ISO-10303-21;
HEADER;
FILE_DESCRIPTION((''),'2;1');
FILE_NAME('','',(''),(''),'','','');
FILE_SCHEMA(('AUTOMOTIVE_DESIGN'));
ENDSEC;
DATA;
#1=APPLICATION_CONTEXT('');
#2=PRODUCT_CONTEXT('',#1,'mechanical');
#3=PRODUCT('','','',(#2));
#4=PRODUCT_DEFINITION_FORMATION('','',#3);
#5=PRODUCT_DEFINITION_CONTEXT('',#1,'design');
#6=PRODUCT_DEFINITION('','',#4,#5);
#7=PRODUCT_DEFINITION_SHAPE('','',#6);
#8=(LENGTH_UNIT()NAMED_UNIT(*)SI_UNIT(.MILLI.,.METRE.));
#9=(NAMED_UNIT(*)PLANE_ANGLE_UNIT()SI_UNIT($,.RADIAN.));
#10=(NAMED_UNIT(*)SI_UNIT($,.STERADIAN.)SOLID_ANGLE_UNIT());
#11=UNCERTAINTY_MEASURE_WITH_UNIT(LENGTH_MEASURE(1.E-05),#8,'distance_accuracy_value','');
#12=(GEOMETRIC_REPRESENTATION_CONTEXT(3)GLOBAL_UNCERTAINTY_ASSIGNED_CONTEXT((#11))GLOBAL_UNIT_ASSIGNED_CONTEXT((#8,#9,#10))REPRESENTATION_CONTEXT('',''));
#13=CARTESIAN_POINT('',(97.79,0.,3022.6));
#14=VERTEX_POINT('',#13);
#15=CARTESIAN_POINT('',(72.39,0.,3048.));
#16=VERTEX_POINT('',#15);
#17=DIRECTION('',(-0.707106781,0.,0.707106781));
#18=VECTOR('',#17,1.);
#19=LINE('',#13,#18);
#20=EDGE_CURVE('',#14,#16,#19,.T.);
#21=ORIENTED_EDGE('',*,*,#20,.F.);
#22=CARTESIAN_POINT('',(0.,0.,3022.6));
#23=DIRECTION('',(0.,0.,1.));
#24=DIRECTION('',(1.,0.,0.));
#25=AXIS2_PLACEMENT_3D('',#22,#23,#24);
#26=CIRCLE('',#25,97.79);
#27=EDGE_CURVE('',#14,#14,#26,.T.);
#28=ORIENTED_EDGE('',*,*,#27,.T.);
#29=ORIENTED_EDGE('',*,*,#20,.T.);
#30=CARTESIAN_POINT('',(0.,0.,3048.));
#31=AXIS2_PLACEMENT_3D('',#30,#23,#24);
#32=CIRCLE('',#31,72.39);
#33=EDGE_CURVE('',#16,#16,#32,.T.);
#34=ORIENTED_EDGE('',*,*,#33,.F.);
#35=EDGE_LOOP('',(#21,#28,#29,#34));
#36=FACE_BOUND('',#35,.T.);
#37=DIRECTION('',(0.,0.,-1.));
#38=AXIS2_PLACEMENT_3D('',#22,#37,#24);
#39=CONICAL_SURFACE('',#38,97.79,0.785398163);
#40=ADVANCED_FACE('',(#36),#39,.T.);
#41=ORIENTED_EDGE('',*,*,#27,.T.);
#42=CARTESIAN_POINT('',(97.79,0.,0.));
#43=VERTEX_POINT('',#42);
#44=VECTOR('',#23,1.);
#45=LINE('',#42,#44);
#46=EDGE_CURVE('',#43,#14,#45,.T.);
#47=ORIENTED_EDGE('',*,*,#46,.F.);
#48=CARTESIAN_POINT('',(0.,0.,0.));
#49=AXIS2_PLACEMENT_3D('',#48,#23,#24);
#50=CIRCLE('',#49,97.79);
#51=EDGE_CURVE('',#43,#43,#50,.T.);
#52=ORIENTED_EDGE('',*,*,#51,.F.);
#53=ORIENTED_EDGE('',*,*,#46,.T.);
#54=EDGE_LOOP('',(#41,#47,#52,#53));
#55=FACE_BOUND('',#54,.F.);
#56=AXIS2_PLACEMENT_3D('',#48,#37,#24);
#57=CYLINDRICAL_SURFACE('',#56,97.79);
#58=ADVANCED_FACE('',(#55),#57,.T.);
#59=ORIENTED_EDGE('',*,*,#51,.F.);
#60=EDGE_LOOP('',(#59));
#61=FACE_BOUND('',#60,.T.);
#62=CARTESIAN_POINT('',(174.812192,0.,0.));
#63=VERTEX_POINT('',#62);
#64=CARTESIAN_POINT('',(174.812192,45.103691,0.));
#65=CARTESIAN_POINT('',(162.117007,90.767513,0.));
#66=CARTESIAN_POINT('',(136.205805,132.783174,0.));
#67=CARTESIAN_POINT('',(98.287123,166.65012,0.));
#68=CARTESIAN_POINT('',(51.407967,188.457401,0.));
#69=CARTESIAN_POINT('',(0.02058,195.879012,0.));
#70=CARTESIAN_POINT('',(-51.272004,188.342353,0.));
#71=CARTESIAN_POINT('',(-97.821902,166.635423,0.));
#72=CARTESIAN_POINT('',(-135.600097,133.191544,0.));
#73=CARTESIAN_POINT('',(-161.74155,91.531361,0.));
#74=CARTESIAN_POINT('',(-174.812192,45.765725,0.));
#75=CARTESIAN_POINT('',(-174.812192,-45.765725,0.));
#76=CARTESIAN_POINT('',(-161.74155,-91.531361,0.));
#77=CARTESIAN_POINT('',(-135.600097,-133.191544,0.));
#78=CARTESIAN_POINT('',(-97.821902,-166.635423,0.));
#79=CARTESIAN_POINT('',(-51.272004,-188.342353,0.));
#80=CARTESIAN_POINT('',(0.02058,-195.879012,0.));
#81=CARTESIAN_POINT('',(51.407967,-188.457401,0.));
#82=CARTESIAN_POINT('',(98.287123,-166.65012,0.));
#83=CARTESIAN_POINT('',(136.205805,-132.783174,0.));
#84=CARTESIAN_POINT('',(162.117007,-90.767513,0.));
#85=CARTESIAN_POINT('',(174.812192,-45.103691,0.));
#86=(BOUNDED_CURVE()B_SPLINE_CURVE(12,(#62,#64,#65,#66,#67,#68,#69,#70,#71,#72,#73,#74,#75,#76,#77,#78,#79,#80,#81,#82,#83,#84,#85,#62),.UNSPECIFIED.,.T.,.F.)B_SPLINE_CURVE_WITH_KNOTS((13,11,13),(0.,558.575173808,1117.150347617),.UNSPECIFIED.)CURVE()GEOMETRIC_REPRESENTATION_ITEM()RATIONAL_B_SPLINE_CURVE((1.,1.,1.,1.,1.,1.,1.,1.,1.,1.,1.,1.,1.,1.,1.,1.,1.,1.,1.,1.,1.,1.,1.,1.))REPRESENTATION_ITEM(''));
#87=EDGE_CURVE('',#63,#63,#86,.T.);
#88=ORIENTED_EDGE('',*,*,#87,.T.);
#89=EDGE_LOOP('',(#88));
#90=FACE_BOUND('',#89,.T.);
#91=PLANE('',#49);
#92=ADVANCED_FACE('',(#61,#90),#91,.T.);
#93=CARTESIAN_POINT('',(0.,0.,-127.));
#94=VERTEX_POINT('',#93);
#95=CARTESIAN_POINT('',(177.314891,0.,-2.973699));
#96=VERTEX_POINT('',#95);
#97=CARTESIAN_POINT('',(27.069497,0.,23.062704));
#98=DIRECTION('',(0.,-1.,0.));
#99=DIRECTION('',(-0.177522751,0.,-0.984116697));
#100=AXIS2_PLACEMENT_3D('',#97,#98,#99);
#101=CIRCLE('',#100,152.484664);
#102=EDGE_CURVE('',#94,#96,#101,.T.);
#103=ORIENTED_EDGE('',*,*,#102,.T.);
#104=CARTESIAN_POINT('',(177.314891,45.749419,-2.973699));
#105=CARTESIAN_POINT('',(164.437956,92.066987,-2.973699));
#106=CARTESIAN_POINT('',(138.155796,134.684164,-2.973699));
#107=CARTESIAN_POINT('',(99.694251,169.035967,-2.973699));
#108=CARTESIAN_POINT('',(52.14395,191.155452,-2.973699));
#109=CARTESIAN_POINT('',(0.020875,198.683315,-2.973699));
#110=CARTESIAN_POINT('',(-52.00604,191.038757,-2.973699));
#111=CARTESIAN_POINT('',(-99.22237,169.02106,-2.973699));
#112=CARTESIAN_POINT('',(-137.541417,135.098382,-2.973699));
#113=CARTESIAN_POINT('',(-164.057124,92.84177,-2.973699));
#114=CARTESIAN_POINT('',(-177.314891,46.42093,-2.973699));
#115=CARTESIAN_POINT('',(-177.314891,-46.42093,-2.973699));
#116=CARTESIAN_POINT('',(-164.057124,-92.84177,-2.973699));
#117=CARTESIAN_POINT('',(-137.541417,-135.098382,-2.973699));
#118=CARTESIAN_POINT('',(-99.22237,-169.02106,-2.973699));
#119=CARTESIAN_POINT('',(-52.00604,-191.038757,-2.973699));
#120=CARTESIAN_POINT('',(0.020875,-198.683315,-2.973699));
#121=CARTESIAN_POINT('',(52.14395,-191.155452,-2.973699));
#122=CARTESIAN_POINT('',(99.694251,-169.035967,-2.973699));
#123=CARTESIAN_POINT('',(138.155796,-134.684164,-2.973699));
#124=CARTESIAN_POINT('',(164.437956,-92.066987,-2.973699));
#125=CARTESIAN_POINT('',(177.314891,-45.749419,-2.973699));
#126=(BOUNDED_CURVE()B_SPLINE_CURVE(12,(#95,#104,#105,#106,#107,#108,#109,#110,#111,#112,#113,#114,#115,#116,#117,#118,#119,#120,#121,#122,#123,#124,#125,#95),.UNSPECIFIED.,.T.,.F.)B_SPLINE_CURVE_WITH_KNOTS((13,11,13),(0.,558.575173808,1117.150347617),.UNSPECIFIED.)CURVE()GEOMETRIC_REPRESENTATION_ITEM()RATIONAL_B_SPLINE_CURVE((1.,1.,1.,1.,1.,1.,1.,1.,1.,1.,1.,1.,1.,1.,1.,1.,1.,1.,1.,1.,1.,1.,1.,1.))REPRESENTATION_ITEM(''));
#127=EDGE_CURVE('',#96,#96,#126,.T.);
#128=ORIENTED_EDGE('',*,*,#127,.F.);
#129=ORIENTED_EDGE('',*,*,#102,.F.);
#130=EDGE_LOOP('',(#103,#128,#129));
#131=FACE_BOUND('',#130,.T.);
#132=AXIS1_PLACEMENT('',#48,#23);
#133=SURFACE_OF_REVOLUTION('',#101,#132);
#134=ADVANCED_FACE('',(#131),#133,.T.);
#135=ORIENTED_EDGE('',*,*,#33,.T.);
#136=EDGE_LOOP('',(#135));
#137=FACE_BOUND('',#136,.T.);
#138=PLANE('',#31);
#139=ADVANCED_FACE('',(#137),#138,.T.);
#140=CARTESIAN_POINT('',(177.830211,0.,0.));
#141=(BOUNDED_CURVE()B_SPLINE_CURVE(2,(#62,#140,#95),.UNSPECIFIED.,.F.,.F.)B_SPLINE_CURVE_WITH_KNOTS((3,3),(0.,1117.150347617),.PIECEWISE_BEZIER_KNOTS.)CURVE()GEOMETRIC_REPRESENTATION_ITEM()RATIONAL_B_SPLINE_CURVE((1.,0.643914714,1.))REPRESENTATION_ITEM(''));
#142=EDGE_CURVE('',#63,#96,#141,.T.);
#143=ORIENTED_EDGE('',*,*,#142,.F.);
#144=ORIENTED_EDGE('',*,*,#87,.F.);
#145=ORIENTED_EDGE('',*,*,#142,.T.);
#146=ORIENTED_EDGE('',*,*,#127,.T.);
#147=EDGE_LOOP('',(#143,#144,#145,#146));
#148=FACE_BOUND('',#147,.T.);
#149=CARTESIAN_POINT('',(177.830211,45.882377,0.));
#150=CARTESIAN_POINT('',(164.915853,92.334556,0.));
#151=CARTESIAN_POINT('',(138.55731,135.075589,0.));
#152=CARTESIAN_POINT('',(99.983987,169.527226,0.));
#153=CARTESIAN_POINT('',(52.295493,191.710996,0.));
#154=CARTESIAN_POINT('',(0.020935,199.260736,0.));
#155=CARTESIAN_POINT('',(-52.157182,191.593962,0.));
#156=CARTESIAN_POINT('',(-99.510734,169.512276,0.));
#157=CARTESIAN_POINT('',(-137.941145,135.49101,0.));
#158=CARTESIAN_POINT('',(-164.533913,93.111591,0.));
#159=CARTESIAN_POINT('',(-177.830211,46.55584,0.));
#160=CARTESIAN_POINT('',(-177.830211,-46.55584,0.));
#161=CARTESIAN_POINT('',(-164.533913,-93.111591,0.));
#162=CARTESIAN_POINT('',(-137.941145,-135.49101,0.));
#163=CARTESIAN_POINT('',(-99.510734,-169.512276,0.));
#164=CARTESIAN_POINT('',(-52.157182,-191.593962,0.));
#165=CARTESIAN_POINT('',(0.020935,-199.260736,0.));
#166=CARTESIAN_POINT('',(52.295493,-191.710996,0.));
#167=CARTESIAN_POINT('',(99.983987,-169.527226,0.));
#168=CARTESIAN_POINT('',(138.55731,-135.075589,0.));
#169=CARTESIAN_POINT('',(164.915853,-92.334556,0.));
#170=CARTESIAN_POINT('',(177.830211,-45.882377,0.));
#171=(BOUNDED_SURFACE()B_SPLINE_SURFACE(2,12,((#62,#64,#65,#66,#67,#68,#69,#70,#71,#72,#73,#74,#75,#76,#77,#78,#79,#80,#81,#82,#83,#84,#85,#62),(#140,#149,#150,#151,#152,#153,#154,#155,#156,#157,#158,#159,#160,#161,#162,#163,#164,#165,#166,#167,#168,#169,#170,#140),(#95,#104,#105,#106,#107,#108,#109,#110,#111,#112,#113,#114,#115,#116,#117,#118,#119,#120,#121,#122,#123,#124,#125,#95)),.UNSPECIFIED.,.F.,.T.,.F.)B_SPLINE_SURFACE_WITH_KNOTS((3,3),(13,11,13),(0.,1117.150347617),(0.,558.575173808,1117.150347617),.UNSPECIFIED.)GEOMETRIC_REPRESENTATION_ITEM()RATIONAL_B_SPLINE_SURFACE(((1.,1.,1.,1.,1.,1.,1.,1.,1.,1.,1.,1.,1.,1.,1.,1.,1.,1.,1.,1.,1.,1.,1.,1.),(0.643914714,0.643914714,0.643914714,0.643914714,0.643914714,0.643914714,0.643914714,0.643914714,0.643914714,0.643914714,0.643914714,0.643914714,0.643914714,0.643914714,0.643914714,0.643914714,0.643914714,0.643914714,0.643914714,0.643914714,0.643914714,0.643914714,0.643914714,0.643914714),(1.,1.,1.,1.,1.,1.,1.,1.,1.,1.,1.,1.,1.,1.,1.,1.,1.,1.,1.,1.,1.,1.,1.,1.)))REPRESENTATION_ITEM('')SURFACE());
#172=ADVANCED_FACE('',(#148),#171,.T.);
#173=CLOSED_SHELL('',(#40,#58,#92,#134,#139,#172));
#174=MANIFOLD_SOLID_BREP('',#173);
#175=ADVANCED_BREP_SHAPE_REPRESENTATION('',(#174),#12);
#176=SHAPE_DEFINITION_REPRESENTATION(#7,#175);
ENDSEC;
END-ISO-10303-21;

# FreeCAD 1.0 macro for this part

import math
import FreeCAD as App
import Part
import Sketcher
from FreeCAD import Vector
Q = App.Units.Quantity


def edges_at(feature, points):
    """Names of the edges that pass closest to the given points."""
    edges = feature.Shape.Edges
    near = lambda p: min(range(len(edges)), key=lambda i: edges[i].distToShape(Part.Vertex(*p))[0])
    return sorted({f"Edge{near(p) + 1}" for p in points})

doc = App.newDocument("Part")
body = doc.addObject("PartDesign::Body", "Body")

# Sketch on XY plane
sketch1 = body.newObject("Sketcher::SketchObject", "Sketch")
sketch1.AttachmentSupport = (doc.getObject("XY_Plane"), [""])
sketch1.MapMode = "FlatFace"
sketch1.addGeometry(Part.Circle(Vector(0, 0, 0), Vector(0, 0, 1), 98), False)
sketch1.addConstraint([
    Sketcher.Constraint("Coincident", 0, 3, -1, 1),
    Sketcher.Constraint("Diameter", 0, Q("7.7 in")),
])
pad1 = body.newObject("PartDesign::Pad", "Pad")
pad1.Profile = sketch1
pad1.Length = Q("120 in")

# Sketch on XZ plane
sketch2 = body.newObject("Sketcher::SketchObject", "Sketch001")
sketch2.AttachmentSupport = (doc.getObject("XZ_Plane"), [""])
sketch2.MapMode = "FlatFace"
sketch2.addGeometry([
    Part.LineSegment(Vector(178, 0, 0), Vector(0, 0, 0)),
    Part.LineSegment(Vector(0, 0, 0), Vector(0, -127, 0)),
    Part.ArcOfCircle(Part.Circle(Vector(27, 23, 0), Vector(0, 0, 1), 152), math.radians(-100), math.radians(-9)),
], False)
sketch2.addConstraint([
    Sketcher.Constraint("Coincident", 0, 2, 1, 1),
    Sketcher.Constraint("Coincident", 1, 2, 2, 1),
    Sketcher.Constraint("Coincident", 2, 2, 0, 1),
    Sketcher.Constraint("Horizontal", 0),
    Sketcher.Constraint("Vertical", 1),
    Sketcher.Constraint("Coincident", 0, 2, -1, 1),
    Sketcher.Constraint("DistanceX", 0, 2, 0, 1, Q("7 in")),
    Sketcher.Constraint("DistanceY", 1, 2, 1, 1, Q("5 in")),
    Sketcher.Constraint("Radius", 2, 152.484664),
])
revolution = body.newObject("PartDesign::Revolution", "Revolution")
revolution.Profile = sketch2
revolution.ReferenceAxis = (sketch2, ["V_Axis"])
revolution.Angle = 360
doc.recompute()

fillet = body.newObject("PartDesign::Fillet", "Fillet")
fillet.Base = (revolution, edges_at(revolution, [(-177.8, 0, 0)]))
fillet.Radius = Q("0.1 in")
doc.recompute()

chamfer = body.newObject("PartDesign::Chamfer", "Chamfer")
chamfer.Base = (fillet, edges_at(fillet, [(-97.79, 0, 3048)]))
chamfer.Size = Q("1 in")

doc.recompute()
